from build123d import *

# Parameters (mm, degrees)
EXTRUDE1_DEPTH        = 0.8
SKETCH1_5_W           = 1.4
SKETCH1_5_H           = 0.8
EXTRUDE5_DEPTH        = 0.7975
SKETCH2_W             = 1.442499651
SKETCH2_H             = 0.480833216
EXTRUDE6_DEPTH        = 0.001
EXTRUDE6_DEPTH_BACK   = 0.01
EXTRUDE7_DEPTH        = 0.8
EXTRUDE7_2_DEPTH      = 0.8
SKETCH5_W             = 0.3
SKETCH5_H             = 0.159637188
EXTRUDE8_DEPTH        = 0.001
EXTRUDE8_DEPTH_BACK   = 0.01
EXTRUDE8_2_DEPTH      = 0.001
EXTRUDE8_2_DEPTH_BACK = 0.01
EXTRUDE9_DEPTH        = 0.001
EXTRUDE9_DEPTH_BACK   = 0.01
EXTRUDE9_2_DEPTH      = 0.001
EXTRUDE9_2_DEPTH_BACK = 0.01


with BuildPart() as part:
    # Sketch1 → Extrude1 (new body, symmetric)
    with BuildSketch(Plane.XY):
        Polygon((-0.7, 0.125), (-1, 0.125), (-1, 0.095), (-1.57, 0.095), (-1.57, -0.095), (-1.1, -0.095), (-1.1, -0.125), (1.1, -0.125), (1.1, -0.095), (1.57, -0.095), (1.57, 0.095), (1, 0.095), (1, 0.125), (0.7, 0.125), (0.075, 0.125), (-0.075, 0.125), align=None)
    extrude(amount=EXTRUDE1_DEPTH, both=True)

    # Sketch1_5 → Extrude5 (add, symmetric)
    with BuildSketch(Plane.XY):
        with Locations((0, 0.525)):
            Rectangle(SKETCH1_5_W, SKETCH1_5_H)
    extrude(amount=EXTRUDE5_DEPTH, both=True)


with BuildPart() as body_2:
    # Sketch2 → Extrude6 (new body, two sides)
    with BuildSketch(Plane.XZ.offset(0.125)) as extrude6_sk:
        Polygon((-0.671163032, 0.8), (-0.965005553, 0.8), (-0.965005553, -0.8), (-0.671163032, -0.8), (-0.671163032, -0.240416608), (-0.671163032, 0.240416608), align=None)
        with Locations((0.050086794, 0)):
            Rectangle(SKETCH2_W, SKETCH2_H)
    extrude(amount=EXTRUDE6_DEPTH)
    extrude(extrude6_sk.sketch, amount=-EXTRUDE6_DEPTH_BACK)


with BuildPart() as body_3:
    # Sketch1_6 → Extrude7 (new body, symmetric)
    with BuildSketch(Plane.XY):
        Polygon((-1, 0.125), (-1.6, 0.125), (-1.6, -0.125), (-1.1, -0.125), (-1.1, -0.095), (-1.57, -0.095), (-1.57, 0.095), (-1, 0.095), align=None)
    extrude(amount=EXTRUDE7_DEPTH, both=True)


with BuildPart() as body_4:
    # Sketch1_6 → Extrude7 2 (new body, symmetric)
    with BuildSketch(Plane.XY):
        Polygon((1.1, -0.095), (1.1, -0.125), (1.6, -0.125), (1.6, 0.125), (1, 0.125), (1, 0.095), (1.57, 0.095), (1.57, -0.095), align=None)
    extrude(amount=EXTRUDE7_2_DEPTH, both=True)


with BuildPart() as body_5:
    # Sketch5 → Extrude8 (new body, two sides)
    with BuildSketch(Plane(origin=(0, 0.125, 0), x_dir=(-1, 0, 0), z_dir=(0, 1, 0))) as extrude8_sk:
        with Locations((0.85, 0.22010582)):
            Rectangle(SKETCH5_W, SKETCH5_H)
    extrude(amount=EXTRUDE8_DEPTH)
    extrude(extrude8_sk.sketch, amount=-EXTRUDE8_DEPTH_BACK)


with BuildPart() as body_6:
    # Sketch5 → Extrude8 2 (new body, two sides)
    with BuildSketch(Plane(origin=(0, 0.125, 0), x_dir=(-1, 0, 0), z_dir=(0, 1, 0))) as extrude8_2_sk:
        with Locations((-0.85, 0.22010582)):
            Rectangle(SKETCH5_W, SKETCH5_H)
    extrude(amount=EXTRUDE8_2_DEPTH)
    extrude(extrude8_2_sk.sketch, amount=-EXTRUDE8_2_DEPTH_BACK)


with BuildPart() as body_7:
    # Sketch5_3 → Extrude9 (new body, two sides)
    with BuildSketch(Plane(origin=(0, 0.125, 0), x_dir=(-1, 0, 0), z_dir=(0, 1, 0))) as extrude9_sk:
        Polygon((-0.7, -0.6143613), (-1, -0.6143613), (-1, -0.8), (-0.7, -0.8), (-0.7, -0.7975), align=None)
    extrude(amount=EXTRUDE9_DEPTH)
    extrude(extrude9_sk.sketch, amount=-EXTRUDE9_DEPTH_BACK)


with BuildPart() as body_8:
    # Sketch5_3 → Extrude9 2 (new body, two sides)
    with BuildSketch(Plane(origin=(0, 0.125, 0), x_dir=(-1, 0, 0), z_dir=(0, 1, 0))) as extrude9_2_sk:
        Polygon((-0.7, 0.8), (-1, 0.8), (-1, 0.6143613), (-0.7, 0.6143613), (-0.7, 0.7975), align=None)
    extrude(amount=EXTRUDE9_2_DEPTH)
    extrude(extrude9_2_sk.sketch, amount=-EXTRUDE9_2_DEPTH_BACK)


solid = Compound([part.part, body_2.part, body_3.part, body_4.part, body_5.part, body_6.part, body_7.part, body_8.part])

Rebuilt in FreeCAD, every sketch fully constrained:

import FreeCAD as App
import Part
import Sketcher
from FreeCAD import Vector

doc = App.newDocument("Part")
body = doc.addObject("PartDesign::Body", "Body")

# Sketch on XY plane
sketch1 = body.newObject("Sketcher::SketchObject", "Sketch")
sketch1.AttachmentSupport = (doc.getObject("XY_Plane"), [""])
sketch1.MapMode = "FlatFace"
sketch1.addGeometry([
    Part.LineSegment(Vector(-1, 0.125, 0), Vector(-1, 0.095, 0)),  # 0
    Part.LineSegment(Vector(-1, 0.095, 0), Vector(-1.57, 0.095, 0)),  # 1
    Part.LineSegment(Vector(-1.57, 0.095, 0), Vector(-1.57, -0.095, 0)),  # 2
    Part.LineSegment(Vector(-1.57, -0.095, 0), Vector(-1.1, -0.095, 0)),  # 3
    Part.LineSegment(Vector(-1.1, -0.095, 0), Vector(-1.1, -0.125, 0)),  # 4
    Part.LineSegment(Vector(-1.1, -0.125, 0), Vector(1.1, -0.125, 0)),  # 5
    Part.LineSegment(Vector(1.1, -0.125, 0), Vector(1.1, -0.095, 0)),  # 6
    Part.LineSegment(Vector(1.1, -0.095, 0), Vector(1.57, -0.095, 0)),  # 7
    Part.LineSegment(Vector(1.57, -0.095, 0), Vector(1.57, 0.095, 0)),  # 8
    Part.LineSegment(Vector(1.57, 0.095, 0), Vector(1, 0.095, 0)),  # 9
    Part.LineSegment(Vector(1, 0.095, 0), Vector(1, 0.125, 0)),  # 10
    Part.LineSegment(Vector(1, 0.125, 0), Vector(-1, 0.125, 0)),  # 11
], False)
sketch1.addConstraint([
    Sketcher.Constraint("Coincident", 0, 2, 1, 1),
    Sketcher.Constraint("Coincident", 1, 2, 2, 1),
    Sketcher.Constraint("Coincident", 2, 2, 3, 1),
    Sketcher.Constraint("Coincident", 3, 2, 4, 1),
    Sketcher.Constraint("Coincident", 4, 2, 5, 1),
    Sketcher.Constraint("Coincident", 5, 2, 6, 1),
    Sketcher.Constraint("Coincident", 6, 2, 7, 1),
    Sketcher.Constraint("Coincident", 7, 2, 8, 1),
    Sketcher.Constraint("Coincident", 8, 2, 9, 1),
    Sketcher.Constraint("Coincident", 9, 2, 10, 1),
    Sketcher.Constraint("Coincident", 10, 2, 11, 1),
    Sketcher.Constraint("Coincident", 11, 2, 0, 1),
    Sketcher.Constraint("Vertical", 0),
    Sketcher.Constraint("Horizontal", 1),
    Sketcher.Constraint("Vertical", 2),
    Sketcher.Constraint("Horizontal", 3),
    Sketcher.Constraint("Vertical", 4),
    Sketcher.Constraint("Horizontal", 5),
    Sketcher.Constraint("Vertical", 6),
    Sketcher.Constraint("Horizontal", 7),
    Sketcher.Constraint("Vertical", 8),
    Sketcher.Constraint("Horizontal", 9),
    Sketcher.Constraint("Vertical", 10),
    Sketcher.Constraint("Horizontal", 11),
    Sketcher.Constraint("Symmetric", 1, 2, 7, 2, -1, 1),
    Sketcher.Constraint("Symmetric", 3, 2, 6, 2, -2),
    Sketcher.Constraint("Symmetric", 0, 2, 9, 2, -2),
    Sketcher.Constraint("Equal", 0, 4),
    Sketcher.Constraint("DistanceX", 11, 2, 11, 1, 2.0),
    Sketcher.Constraint("DistanceX", 5, 1, 5, 2, 2.2),
    Sketcher.Constraint("DistanceX", 1, 2, 1, 1, 0.57),
    Sketcher.Constraint("DistanceY", 0, 2, 0, 1, 0.03),
    Sketcher.Constraint("DistanceY", 2, 2, 2, 1, 0.19),
])
pad1 = body.newObject("PartDesign::Pad", "Pad")
pad1.Profile = sketch1
pad1.Length = 1.6
pad1.Midplane = True

# Sketch on XY plane
sketch2 = body.newObject("Sketcher::SketchObject", "Sketch001")
sketch2.AttachmentSupport = (doc.getObject("XY_Plane"), [""])
sketch2.MapMode = "FlatFace"
sketch2.addGeometry([
    Part.LineSegment(Vector(-0.7, 0.925, 0), Vector(-0.7, 0.125, 0)),
    Part.LineSegment(Vector(-0.7, 0.125, 0), Vector(0.7, 0.125, 0)),
    Part.LineSegment(Vector(0.7, 0.125, 0), Vector(0.7, 0.925, 0)),
    Part.LineSegment(Vector(0.7, 0.925, 0), Vector(-0.7, 0.925, 0)),
], False)
sketch2.addConstraint([
    Sketcher.Constraint("Coincident", 0, 2, 1, 1),
    Sketcher.Constraint("Coincident", 1, 2, 2, 1),
    Sketcher.Constraint("Coincident", 2, 2, 3, 1),
    Sketcher.Constraint("Coincident", 3, 2, 0, 1),
    Sketcher.Constraint("Vertical", 0),
    Sketcher.Constraint("Horizontal", 1),
    Sketcher.Constraint("Vertical", 2),
    Sketcher.Constraint("Horizontal", 3),
    Sketcher.Constraint("DistanceX", 1, 1, 1, 2, 1.4),
    Sketcher.Constraint("DistanceY", 0, 2, 0, 1, 0.8),
    Sketcher.Constraint("DistanceX", 0, 2, -1, 1, 0.7),
    Sketcher.Constraint("DistanceY", -1, 1, 0, 2, 0.125),
])
pad2 = body.newObject("PartDesign::Pad", "Pad001")
pad2.Profile = sketch2
pad2.Length = 1.595
pad2.Midplane = True
body2 = doc.addObject("PartDesign::Body", "Body001")

# Sketch on XZ plane
sketch3 = body2.newObject("Sketcher::SketchObject", "Sketch002")
sketch3.AttachmentSupport = (doc.getObject("XZ_Plane001"), [""])
sketch3.MapMode = "FlatFace"
sketch3.AttachmentOffset = App.Placement(Vector(0, 0, 0.125), App.Rotation())
sketch3.addGeometry([
    Part.LineSegment(Vector(-0.671163, 0.8, 0), Vector(-0.965006, 0.8, 0)),  # 0
    Part.LineSegment(Vector(-0.965006, 0.8, 0), Vector(-0.965006, -0.8, 0)),  # 1
    Part.LineSegment(Vector(-0.965006, -0.8, 0), Vector(-0.671163, -0.8, 0)),  # 2
    Part.LineSegment(Vector(-0.671163, -0.8, 0), Vector(-0.671163, -0.240417, 0)),  # 3
    Part.LineSegment(Vector(-0.671163, -0.240417, 0), Vector(0.771337, -0.240417, 0)),  # 4
    Part.LineSegment(Vector(0.771337, -0.240417, 0), Vector(0.771337, 0.240417, 0)),  # 5
    Part.LineSegment(Vector(0.771337, 0.240417, 0), Vector(-0.671163, 0.240417, 0)),  # 6
    Part.LineSegment(Vector(-0.671163, 0.240417, 0), Vector(-0.671163, 0.8, 0)),  # 7
], False)
sketch3.addConstraint([
    Sketcher.Constraint("Coincident", 0, 2, 1, 1),
    Sketcher.Constraint("Coincident", 1, 2, 2, 1),
    Sketcher.Constraint("Coincident", 2, 2, 3, 1),
    Sketcher.Constraint("Coincident", 3, 2, 4, 1),
    Sketcher.Constraint("Coincident", 4, 2, 5, 1),
    Sketcher.Constraint("Coincident", 5, 2, 6, 1),
    Sketcher.Constraint("Coincident", 6, 2, 7, 1),
    Sketcher.Constraint("Coincident", 7, 2, 0, 1),
    Sketcher.Constraint("Horizontal", 0),
    Sketcher.Constraint("Vertical", 1),
    Sketcher.Constraint("Horizontal", 2),
    Sketcher.Constraint("Vertical", 3),
    Sketcher.Constraint("Horizontal", 4),
    Sketcher.Constraint("Vertical", 5),
    Sketcher.Constraint("Horizontal", 6),
    Sketcher.Constraint("Vertical", 7),
    Sketcher.Constraint("Symmetric", 3, 2, 6, 2, -1),
    Sketcher.Constraint("Equal", 3, 7),
    Sketcher.Constraint("DistanceY", 1, 2, 1, 1, 1.6),
    Sketcher.Constraint("DistanceX", 4, 1, 4, 2, 1.4425),
    Sketcher.Constraint("DistanceX", 0, 2, 0, 1, 0.293843),
    Sketcher.Constraint("DistanceY", 3, 1, 3, 2, 0.559583),
    Sketcher.Constraint("DistanceX", 0, 2, -1, 1, 0.965006),
])
pad3 = body2.newObject("PartDesign::Pad", "Pad002")
pad3.Profile = sketch3
pad3.Type = "TwoLengths"
pad3.Length = 0.001
pad3.Length2 = 0.01
body3 = doc.addObject("PartDesign::Body", "Body002")

# Sketch on XY plane
sketch4 = body3.newObject("Sketcher::SketchObject", "Sketch003")
sketch4.AttachmentSupport = (doc.getObject("XY_Plane002"), [""])
sketch4.MapMode = "FlatFace"
sketch4.addGeometry([
    Part.LineSegment(Vector(-1, 0.125, 0), Vector(-1.6, 0.125, 0)),  # 0
    Part.LineSegment(Vector(-1.6, 0.125, 0), Vector(-1.6, -0.125, 0)),  # 1
    Part.LineSegment(Vector(-1.6, -0.125, 0), Vector(-1.1, -0.125, 0)),  # 2
    Part.LineSegment(Vector(-1.1, -0.125, 0), Vector(-1.1, -0.095, 0)),  # 3
    Part.LineSegment(Vector(-1.1, -0.095, 0), Vector(-1.57, -0.095, 0)),  # 4
    Part.LineSegment(Vector(-1.57, -0.095, 0), Vector(-1.57, 0.095, 0)),  # 5
    Part.LineSegment(Vector(-1.57, 0.095, 0), Vector(-1, 0.095, 0)),  # 6
    Part.LineSegment(Vector(-1, 0.095, 0), Vector(-1, 0.125, 0)),  # 7
], False)
sketch4.addConstraint([
    Sketcher.Constraint("Coincident", 0, 2, 1, 1),
    Sketcher.Constraint("Coincident", 1, 2, 2, 1),
    Sketcher.Constraint("Coincident", 2, 2, 3, 1),
    Sketcher.Constraint("Coincident", 3, 2, 4, 1),
    Sketcher.Constraint("Coincident", 4, 2, 5, 1),
    Sketcher.Constraint("Coincident", 5, 2, 6, 1),
    Sketcher.Constraint("Coincident", 6, 2, 7, 1),
    Sketcher.Constraint("Coincident", 7, 2, 0, 1),
    Sketcher.Constraint("Horizontal", 0),
    Sketcher.Constraint("Vertical", 1),
    Sketcher.Constraint("Horizontal", 2),
    Sketcher.Constraint("Vertical", 3),
    Sketcher.Constraint("Horizontal", 4),
    Sketcher.Constraint("Vertical", 5),
    Sketcher.Constraint("Horizontal", 6),
    Sketcher.Constraint("Vertical", 7),
    Sketcher.Constraint("Equal", 3, 7),
    Sketcher.Constraint("DistanceX", 0, 2, 0, 1, 0.6),
    Sketcher.Constraint("DistanceX", 2, 1, 2, 2, 0.5),
    Sketcher.Constraint("DistanceX", 6, 2, -1, 1, 1.0),
    Sketcher.Constraint("DistanceX", 4, 2, 4, 1, 0.47),
    Sketcher.Constraint("DistanceY", 1, 2, 1, 1, 0.25),
    Sketcher.Constraint("DistanceY", 3, 1, 3, 2, 0.03),
    Sketcher.Constraint("DistanceY", -1, 1, 0, 2, 0.125),
])
pad4 = body3.newObject("PartDesign::Pad", "Pad003")
pad4.Profile = sketch4
pad4.Length = 1.6
pad4.Midplane = True
body4 = doc.addObject("PartDesign::Body", "Body003")

# Sketch on XY plane
sketch5 = body4.newObject("Sketcher::SketchObject", "Sketch004")
sketch5.AttachmentSupport = (doc.getObject("XY_Plane003"), [""])
sketch5.MapMode = "FlatFace"
sketch5.addGeometry([
    Part.LineSegment(Vector(1.1, -0.095, 0), Vector(1.1, -0.125, 0)),  # 0
    Part.LineSegment(Vector(1.1, -0.125, 0), Vector(1.6, -0.125, 0)),  # 1
    Part.LineSegment(Vector(1.6, -0.125, 0), Vector(1.6, 0.125, 0)),  # 2
    Part.LineSegment(Vector(1.6, 0.125, 0), Vector(1, 0.125, 0)),  # 3
    Part.LineSegment(Vector(1, 0.125, 0), Vector(1, 0.095, 0)),  # 4
    Part.LineSegment(Vector(1, 0.095, 0), Vector(1.57, 0.095, 0)),  # 5
    Part.LineSegment(Vector(1.57, 0.095, 0), Vector(1.57, -0.095, 0)),  # 6
    Part.LineSegment(Vector(1.57, -0.095, 0), Vector(1.1, -0.095, 0)),  # 7
], False)
sketch5.addConstraint([
    Sketcher.Constraint("Coincident", 0, 2, 1, 1),
    Sketcher.Constraint("Coincident", 1, 2, 2, 1),
    Sketcher.Constraint("Coincident", 2, 2, 3, 1),
    Sketcher.Constraint("Coincident", 3, 2, 4, 1),
    Sketcher.Constraint("Coincident", 4, 2, 5, 1),
    Sketcher.Constraint("Coincident", 5, 2, 6, 1),
    Sketcher.Constraint("Coincident", 6, 2, 7, 1),
    Sketcher.Constraint("Coincident", 7, 2, 0, 1),
    Sketcher.Constraint("Vertical", 0),
    Sketcher.Constraint("Horizontal", 1),
    Sketcher.Constraint("Vertical", 2),
    Sketcher.Constraint("Horizontal", 3),
    Sketcher.Constraint("Vertical", 4),
    Sketcher.Constraint("Horizontal", 5),
    Sketcher.Constraint("Vertical", 6),
    Sketcher.Constraint("Horizontal", 7),
    Sketcher.Constraint("Equal", 0, 4),
    Sketcher.Constraint("DistanceX", 1, 1, 1, 2, 0.5),
    Sketcher.Constraint("DistanceX", 3, 2, 3, 1, 0.6),
    Sketcher.Constraint("DistanceX", -1, 1, 3, 2, 1.0),
    Sketcher.Constraint("DistanceX", 5, 1, 5, 2, 0.57),
    Sketcher.Constraint("DistanceY", 0, 2, 0, 1, 0.03),
    Sketcher.Constraint("DistanceY", 2, 1, 2, 2, 0.25),
    Sketcher.Constraint("DistanceY", 0, 2, -1, 1, 0.125),
])
pad5 = body4.newObject("PartDesign::Pad", "Pad004")
pad5.Profile = sketch5
pad5.Length = 1.6
pad5.Midplane = True
body5 = doc.addObject("PartDesign::Body", "Body004")

# Sketch on XZ plane
sketch6 = body5.newObject("Sketcher::SketchObject", "Sketch005")
sketch6.AttachmentSupport = (doc.getObject("XZ_Plane004"), [""])
sketch6.MapMode = "FlatFace"
sketch6.AttachmentOffset = App.Placement(Vector(0, 0, -0.125), App.Rotation())
sketch6.addGeometry([
    Part.LineSegment(Vector(-0.7, 0.299924, 0), Vector(-0.7, 0.140287, 0)),
    Part.LineSegment(Vector(-0.7, 0.140287, 0), Vector(-1, 0.140287, 0)),
    Part.LineSegment(Vector(-1, 0.140287, 0), Vector(-1, 0.299924, 0)),
    Part.LineSegment(Vector(-1, 0.299924, 0), Vector(-0.7, 0.299924, 0)),
], False)
sketch6.addConstraint([
    Sketcher.Constraint("Coincident", 0, 2, 1, 1),
    Sketcher.Constraint("Coincident", 1, 2, 2, 1),
    Sketcher.Constraint("Coincident", 2, 2, 3, 1),
    Sketcher.Constraint("Coincident", 3, 2, 0, 1),
    Sketcher.Constraint("Vertical", 0),
    Sketcher.Constraint("Horizontal", 1),
    Sketcher.Constraint("Vertical", 2),
    Sketcher.Constraint("Horizontal", 3),
    Sketcher.Constraint("DistanceX", 1, 2, 1, 1, 0.3),
    Sketcher.Constraint("DistanceX", 1, 2, -1, 1, 1.0),
    Sketcher.Constraint("DistanceY", 0, 2, 0, 1, 0.159637),
    Sketcher.Constraint("DistanceY", -1, 1, 0, 2, 0.140287),
])
pad6 = body5.newObject("PartDesign::Pad", "Pad005")
pad6.Profile = sketch6
pad6.Type = "TwoLengths"
pad6.Length = 0.001
pad6.Length2 = 0.01
pad6.Reversed = True
body6 = doc.addObject("PartDesign::Body", "Body005")

# Sketch on XZ plane
sketch7 = body6.newObject("Sketcher::SketchObject", "Sketch006")
sketch7.AttachmentSupport = (doc.getObject("XZ_Plane005"), [""])
sketch7.MapMode = "FlatFace"
sketch7.AttachmentOffset = App.Placement(Vector(0, 0, -0.125), App.Rotation())
sketch7.addGeometry([
    Part.LineSegment(Vector(1, 0.299924, 0), Vector(1, 0.140287, 0)),
    Part.LineSegment(Vector(1, 0.140287, 0), Vector(0.7, 0.140287, 0)),
    Part.LineSegment(Vector(0.7, 0.140287, 0), Vector(0.7, 0.299924, 0)),
    Part.LineSegment(Vector(0.7, 0.299924, 0), Vector(1, 0.299924, 0)),
], False)
sketch7.addConstraint([
    Sketcher.Constraint("Coincident", 0, 2, 1, 1),
    Sketcher.Constraint("Coincident", 1, 2, 2, 1),
    Sketcher.Constraint("Coincident", 2, 2, 3, 1),
    Sketcher.Constraint("Coincident", 3, 2, 0, 1),
    Sketcher.Constraint("Vertical", 0),
    Sketcher.Constraint("Horizontal", 1),
    Sketcher.Constraint("Vertical", 2),
    Sketcher.Constraint("Horizontal", 3),
    Sketcher.Constraint("DistanceX", 1, 2, 1, 1, 0.3),
    Sketcher.Constraint("DistanceX", -1, 1, 0, 2, 1.0),
    Sketcher.Constraint("DistanceY", 0, 2, 0, 1, 0.159637),
    Sketcher.Constraint("DistanceY", -1, 1, 0, 2, 0.140287),
])
pad7 = body6.newObject("PartDesign::Pad", "Pad006")
pad7.Profile = sketch7
pad7.Type = "TwoLengths"
pad7.Length = 0.001
pad7.Length2 = 0.01
pad7.Reversed = True
body7 = doc.addObject("PartDesign::Body", "Body006")

# Sketch on XZ plane
sketch8 = body7.newObject("Sketcher::SketchObject", "Sketch007")
sketch8.AttachmentSupport = (doc.getObject("XZ_Plane006"), [""])
sketch8.MapMode = "FlatFace"
sketch8.AttachmentOffset = App.Placement(Vector(0, 0, -0.125), App.Rotation())
sketch8.addGeometry([
    Part.LineSegment(Vector(0.7, -0.614361, 0), Vector(1, -0.614361, 0)),
    Part.LineSegment(Vector(1, -0.614361, 0), Vector(1, -0.8, 0)),
    Part.LineSegment(Vector(1, -0.8, 0), Vector(0.7, -0.8, 0)),
    Part.LineSegment(Vector(0.7, -0.8, 0), Vector(0.7, -0.614361, 0)),
], False)
sketch8.addConstraint([
    Sketcher.Constraint("Coincident", 0, 2, 1, 1),
    Sketcher.Constraint("Coincident", 1, 2, 2, 1),
    Sketcher.Constraint("Coincident", 2, 2, 3, 1),
    Sketcher.Constraint("Coincident", 3, 2, 0, 1),
    Sketcher.Constraint("Horizontal", 0),
    Sketcher.Constraint("Vertical", 1),
    Sketcher.Constraint("Horizontal", 2),
    Sketcher.Constraint("Vertical", 3),
    Sketcher.Constraint("DistanceX", 0, 1, 0, 2, 0.3),
    Sketcher.Constraint("DistanceX", -1, 1, 0, 2, 1.0),
    Sketcher.Constraint("DistanceY", 1, 2, -1, 1, 0.8),
    Sketcher.Constraint("DistanceY", 1, 2, 1, 1, 0.185639),
])
pad8 = body7.newObject("PartDesign::Pad", "Pad007")
pad8.Profile = sketch8
pad8.Type = "TwoLengths"
pad8.Length = 0.001
pad8.Length2 = 0.01
pad8.Reversed = True
body8 = doc.addObject("PartDesign::Body", "Body007")

# Sketch on XZ plane
sketch9 = body8.newObject("Sketcher::SketchObject", "Sketch008")
sketch9.AttachmentSupport = (doc.getObject("XZ_Plane007"), [""])
sketch9.MapMode = "FlatFace"
sketch9.AttachmentOffset = App.Placement(Vector(0, 0, -0.125), App.Rotation())
sketch9.addGeometry([
    Part.LineSegment(Vector(0.7, 0.8, 0), Vector(1, 0.8, 0)),
    Part.LineSegment(Vector(1, 0.8, 0), Vector(1, 0.614361, 0)),
    Part.LineSegment(Vector(1, 0.614361, 0), Vector(0.7, 0.614361, 0)),
    Part.LineSegment(Vector(0.7, 0.614361, 0), Vector(0.7, 0.8, 0)),
], False)
sketch9.addConstraint([
    Sketcher.Constraint("Coincident", 0, 2, 1, 1),
    Sketcher.Constraint("Coincident", 1, 2, 2, 1),
    Sketcher.Constraint("Coincident", 2, 2, 3, 1),
    Sketcher.Constraint("Coincident", 3, 2, 0, 1),
    Sketcher.Constraint("Horizontal", 0),
    Sketcher.Constraint("Vertical", 1),
    Sketcher.Constraint("Horizontal", 2),
    Sketcher.Constraint("Vertical", 3),
    Sketcher.Constraint("DistanceX", 0, 1, 0, 2, 0.3),
    Sketcher.Constraint("DistanceX", -1, 1, 0, 2, 1.0),
    Sketcher.Constraint("DistanceY", -1, 1, 0, 2, 0.8),
    Sketcher.Constraint("DistanceY", 1, 2, 1, 1, 0.185639),
])
pad9 = body8.newObject("PartDesign::Pad", "Pad008")
pad9.Profile = sketch9
pad9.Type = "TwoLengths"
pad9.Length = 0.001
pad9.Length2 = 0.01
pad9.Reversed = True

doc.recompute()
